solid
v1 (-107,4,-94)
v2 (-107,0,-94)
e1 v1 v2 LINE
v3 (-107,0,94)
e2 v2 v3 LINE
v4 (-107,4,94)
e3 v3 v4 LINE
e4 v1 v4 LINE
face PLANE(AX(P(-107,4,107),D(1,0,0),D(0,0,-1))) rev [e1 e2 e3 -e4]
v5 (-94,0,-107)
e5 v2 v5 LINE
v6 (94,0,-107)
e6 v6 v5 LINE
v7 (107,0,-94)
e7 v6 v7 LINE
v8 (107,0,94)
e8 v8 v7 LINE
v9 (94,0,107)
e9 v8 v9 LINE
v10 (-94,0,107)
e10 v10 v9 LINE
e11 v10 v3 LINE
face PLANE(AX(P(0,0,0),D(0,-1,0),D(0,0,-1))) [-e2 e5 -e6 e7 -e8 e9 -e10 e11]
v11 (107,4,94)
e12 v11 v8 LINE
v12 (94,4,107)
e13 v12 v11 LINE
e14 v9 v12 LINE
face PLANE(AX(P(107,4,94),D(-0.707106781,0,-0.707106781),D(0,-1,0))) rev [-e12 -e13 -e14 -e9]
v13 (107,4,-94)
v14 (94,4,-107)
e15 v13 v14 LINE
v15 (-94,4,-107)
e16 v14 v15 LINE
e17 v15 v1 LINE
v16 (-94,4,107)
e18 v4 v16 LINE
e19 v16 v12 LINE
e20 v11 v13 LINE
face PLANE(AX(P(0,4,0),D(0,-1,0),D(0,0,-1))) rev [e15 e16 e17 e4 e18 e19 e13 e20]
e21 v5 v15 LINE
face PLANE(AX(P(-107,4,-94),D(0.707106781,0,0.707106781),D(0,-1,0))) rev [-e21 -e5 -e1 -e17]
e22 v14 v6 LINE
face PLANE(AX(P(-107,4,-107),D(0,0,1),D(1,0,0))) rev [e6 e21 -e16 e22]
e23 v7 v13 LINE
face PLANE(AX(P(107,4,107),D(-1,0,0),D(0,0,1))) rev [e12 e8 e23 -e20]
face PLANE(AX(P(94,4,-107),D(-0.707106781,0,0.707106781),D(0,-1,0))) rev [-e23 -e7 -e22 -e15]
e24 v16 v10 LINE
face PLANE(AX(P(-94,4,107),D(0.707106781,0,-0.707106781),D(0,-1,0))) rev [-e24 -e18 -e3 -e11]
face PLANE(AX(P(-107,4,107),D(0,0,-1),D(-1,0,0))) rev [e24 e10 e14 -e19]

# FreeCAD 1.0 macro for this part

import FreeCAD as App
import Part
import Sketcher

V = App.Vector
Q = App.Units.Quantity


def edges_at(feature, points):
    """Names of the edges that pass closest to the given points."""
    edges = feature.Shape.Edges
    near = lambda p: min(range(len(edges)), key=lambda i: edges[i].distToShape(Part.Vertex(*p))[0])
    return sorted({f"Edge{near(p) + 1}" for p in points})


def add_polygon(sketch, points):
    """Adds a closed chain of lines whose ends are joined by coincident constraints."""
    first, n = sketch.GeometryCount, len(points)
    for a, b in zip(points, points[1:] + points[:1]):
        sketch.addGeometry(Part.LineSegment(App.Vector(*a, 0), App.Vector(*b, 0)), False)
    for i in range(n):
        sketch.addConstraint(Sketcher.Constraint("Coincident", first + i, 2, first + (i + 1) % n, 1))

doc = App.newDocument("Part")
body = doc.addObject("PartDesign::Body", "Body")

# Sketch on XZ plane
sketch1 = doc.addObject("Sketcher::SketchObject", "Sketch")
body.addObject(sketch1)
sketch1.AttachmentSupport = (doc.XZ_Plane, [""])
sketch1.MapMode = "FlatFace"
add_polygon(sketch1, [(-107, -107), (-107, 107), (107, 107), (107, -107)])  # lines 0-3
sketch1.addConstraint(Sketcher.Constraint("Vertical", 0))
sketch1.addConstraint(Sketcher.Constraint("Horizontal", 1))
sketch1.addConstraint(Sketcher.Constraint("Vertical", 2))
sketch1.addConstraint(Sketcher.Constraint("Horizontal", 3))
sketch1.addConstraint(Sketcher.Constraint("Symmetric", 0, 2, 2, 2, -1, 1))
sketch1.addConstraint(Sketcher.Constraint("Equal", 3, 0))
sketch1.addConstraint(Sketcher.Constraint("DistanceX", 1, 1, 1, 2, Q("214 mm")))
pad1 = doc.addObject("PartDesign::Pad", "Pad")
body.addObject(pad1)
pad1.Profile = sketch1
pad1.Length = 4
pad1.Reversed = True
doc.recompute()

chamfer = doc.addObject("PartDesign::Chamfer", "Chamfer")
body.addObject(chamfer)
chamfer.Base = (pad1, edges_at(pad1, [
    (107, 2, 107),
    (-107, 2, 107),
    (-107, 2, -107),
    (107, 2, -107),
]))
chamfer.Size = 13

doc.recompute()
